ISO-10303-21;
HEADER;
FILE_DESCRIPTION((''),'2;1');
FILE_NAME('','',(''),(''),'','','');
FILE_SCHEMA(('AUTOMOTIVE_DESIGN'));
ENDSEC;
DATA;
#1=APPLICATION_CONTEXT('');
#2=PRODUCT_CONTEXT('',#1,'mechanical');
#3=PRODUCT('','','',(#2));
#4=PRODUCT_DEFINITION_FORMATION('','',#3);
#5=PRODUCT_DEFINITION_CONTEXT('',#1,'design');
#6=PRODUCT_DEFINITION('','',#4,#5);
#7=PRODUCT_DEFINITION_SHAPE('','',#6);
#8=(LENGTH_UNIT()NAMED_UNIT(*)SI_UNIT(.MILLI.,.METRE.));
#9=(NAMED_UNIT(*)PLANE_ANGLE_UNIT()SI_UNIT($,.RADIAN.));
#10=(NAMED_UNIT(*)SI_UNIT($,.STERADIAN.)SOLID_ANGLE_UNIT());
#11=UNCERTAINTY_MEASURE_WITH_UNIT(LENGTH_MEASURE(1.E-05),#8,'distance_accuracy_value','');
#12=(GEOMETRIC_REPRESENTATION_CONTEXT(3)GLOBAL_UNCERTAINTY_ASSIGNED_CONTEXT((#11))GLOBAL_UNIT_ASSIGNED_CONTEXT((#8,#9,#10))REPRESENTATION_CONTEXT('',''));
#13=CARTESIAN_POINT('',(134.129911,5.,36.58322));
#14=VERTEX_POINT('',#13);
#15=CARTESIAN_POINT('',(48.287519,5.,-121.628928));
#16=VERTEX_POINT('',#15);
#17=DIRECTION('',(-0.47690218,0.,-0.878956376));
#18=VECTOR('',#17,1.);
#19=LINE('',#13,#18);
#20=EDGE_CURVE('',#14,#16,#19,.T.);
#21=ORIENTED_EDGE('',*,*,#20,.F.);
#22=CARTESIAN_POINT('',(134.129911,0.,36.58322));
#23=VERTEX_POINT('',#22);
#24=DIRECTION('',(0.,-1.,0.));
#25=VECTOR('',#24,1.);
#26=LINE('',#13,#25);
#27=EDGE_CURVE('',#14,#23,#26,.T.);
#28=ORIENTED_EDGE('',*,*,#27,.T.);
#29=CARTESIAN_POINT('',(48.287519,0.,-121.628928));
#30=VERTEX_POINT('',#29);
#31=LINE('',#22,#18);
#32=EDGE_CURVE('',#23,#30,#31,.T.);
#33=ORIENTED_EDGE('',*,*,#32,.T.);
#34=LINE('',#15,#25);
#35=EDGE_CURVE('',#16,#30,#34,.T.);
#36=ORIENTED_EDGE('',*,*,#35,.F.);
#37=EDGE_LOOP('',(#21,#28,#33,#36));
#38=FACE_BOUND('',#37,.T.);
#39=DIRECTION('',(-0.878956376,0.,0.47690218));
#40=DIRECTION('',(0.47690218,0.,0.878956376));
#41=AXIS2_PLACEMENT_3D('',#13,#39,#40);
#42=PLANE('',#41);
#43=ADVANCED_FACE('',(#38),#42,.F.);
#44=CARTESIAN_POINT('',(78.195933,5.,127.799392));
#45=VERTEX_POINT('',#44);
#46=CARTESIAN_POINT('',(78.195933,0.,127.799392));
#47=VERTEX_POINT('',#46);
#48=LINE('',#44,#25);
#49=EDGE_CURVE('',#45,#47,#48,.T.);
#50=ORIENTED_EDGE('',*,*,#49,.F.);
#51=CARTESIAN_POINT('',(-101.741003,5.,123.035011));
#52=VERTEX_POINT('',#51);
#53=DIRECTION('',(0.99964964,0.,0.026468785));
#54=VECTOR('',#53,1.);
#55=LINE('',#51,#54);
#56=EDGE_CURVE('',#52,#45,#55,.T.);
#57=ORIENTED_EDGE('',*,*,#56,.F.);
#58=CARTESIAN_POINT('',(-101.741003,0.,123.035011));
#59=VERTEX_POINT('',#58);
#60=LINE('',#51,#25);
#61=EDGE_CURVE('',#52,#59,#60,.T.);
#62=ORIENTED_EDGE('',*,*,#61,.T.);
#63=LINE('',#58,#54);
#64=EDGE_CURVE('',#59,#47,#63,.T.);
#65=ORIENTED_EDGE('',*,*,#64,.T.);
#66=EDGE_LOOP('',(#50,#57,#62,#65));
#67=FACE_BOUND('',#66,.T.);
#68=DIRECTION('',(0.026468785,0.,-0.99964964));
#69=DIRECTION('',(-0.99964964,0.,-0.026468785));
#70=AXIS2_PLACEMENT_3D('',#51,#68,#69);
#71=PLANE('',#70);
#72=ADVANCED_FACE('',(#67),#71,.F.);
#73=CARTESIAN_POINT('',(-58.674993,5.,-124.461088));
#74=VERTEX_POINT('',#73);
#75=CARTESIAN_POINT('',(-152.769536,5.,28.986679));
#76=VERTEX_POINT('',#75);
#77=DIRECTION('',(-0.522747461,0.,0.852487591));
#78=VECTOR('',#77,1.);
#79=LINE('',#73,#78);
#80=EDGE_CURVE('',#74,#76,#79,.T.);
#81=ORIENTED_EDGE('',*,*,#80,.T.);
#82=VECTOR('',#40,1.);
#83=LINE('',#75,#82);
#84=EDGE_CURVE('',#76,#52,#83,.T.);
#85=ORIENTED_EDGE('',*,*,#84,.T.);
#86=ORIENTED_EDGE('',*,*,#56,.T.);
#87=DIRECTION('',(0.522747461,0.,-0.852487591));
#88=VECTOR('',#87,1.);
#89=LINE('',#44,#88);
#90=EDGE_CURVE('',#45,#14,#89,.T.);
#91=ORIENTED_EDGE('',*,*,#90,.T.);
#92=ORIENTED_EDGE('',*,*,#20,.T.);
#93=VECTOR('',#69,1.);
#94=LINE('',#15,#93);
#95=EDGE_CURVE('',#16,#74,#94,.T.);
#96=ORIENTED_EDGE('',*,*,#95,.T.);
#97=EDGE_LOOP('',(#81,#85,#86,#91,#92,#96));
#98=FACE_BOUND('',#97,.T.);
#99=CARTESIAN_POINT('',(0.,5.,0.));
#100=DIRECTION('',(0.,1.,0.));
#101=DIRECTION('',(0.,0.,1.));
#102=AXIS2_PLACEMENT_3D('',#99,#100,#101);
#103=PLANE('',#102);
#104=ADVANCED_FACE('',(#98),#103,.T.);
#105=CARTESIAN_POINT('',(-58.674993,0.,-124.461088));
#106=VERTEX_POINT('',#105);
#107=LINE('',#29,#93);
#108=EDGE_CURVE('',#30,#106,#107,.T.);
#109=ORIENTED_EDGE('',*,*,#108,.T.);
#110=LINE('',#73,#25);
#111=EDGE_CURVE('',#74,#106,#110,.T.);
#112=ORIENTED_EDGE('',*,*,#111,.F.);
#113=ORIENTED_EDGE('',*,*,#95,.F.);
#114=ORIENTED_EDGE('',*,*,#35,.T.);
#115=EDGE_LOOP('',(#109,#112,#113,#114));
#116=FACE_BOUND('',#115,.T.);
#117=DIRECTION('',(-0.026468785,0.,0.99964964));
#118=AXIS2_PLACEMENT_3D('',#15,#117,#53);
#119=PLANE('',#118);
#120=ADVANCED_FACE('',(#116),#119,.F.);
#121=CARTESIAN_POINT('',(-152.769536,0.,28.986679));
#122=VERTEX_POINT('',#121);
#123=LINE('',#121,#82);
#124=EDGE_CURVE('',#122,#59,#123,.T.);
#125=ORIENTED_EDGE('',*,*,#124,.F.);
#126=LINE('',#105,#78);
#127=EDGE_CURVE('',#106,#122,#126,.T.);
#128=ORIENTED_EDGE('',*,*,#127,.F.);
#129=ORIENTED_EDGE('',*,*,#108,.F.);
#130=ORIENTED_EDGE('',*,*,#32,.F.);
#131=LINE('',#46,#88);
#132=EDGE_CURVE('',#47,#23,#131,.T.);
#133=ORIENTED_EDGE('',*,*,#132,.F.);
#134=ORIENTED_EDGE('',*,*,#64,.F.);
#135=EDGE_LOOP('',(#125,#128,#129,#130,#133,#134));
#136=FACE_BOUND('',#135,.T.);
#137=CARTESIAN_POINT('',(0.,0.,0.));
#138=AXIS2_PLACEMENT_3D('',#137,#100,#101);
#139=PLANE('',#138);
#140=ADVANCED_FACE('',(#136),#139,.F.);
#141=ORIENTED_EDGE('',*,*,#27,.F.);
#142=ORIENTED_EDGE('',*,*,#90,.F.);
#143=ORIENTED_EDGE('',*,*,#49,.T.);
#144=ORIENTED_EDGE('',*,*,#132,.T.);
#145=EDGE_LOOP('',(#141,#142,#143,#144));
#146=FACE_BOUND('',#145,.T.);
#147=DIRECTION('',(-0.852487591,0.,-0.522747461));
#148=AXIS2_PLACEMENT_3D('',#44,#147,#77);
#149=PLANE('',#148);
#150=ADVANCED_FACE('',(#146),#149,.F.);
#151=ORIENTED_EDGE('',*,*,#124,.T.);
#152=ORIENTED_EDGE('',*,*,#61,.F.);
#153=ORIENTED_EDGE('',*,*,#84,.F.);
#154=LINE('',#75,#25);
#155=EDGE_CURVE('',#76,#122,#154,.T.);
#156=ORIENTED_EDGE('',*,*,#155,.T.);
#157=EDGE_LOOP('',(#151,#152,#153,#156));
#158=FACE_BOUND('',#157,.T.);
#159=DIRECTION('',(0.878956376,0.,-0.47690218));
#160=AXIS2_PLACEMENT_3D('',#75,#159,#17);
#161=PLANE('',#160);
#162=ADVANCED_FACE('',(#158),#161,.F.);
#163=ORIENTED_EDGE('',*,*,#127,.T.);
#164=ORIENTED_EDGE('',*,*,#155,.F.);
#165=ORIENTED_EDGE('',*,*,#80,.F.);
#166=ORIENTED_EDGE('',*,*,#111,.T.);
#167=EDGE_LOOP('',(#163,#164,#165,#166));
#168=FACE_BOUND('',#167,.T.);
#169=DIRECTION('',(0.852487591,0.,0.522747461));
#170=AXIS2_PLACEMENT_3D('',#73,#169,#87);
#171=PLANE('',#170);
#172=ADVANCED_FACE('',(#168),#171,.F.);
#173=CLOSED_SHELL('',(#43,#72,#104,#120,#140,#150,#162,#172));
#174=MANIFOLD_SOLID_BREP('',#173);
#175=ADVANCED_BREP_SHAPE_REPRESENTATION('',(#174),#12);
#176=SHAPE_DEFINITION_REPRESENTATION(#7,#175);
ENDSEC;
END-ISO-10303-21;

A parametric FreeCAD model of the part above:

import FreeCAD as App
import Part
import Sketcher
from FreeCAD import Vector

doc = App.newDocument("Part")
body = doc.addObject("PartDesign::Body", "Body")

sketch1 = body.newObject("Sketcher::SketchObject", "Sketch")
sketch1.AttachmentSupport = (doc.getObject("XZ_Plane"), [""])
sketch1.MapMode = "FlatFace"
sketch1.addGeometry(Part.LineSegment(Vector(48, -122, 0), Vector(-59, -124, 0)), False)
sketch1.addGeometry(Part.LineSegment(Vector(-59, -124, 0), Vector(-153, 29, 0)), False)
sketch1.addGeometry(Part.LineSegment(Vector(-153, 29, 0), Vector(-102, 123, 0)), False)
sketch1.addGeometry(Part.LineSegment(Vector(-102, 123, 0), Vector(78, 128, 0)), False)
sketch1.addGeometry(Part.LineSegment(Vector(78, 128, 0), Vector(134, 37, 0)), False)
sketch1.addGeometry(Part.LineSegment(Vector(134, 37, 0), Vector(48, -122, 0)), False)
sketch1.addConstraint(Sketcher.Constraint("Coincident", 0, 2, 1, 1))
sketch1.addConstraint(Sketcher.Constraint("Coincident", 1, 2, 2, 1))
sketch1.addConstraint(Sketcher.Constraint("Coincident", 2, 2, 3, 1))
sketch1.addConstraint(Sketcher.Constraint("Coincident", 3, 2, 4, 1))
sketch1.addConstraint(Sketcher.Constraint("Coincident", 4, 2, 5, 1))
sketch1.addConstraint(Sketcher.Constraint("Coincident", 5, 2, 0, 1))
sketch1.addConstraint(Sketcher.Constraint("Parallel", 0, 3))
sketch1.addConstraint(Sketcher.Constraint("Parallel", 1, 4))
sketch1.addConstraint(Sketcher.Constraint("Parallel", 2, 5))
sketch1.addConstraint(Sketcher.Constraint("Equal", 0, 2))
sketch1.addConstraint(Sketcher.Constraint("Equal", 1, 3))
sketch1.addConstraint(Sketcher.Constraint("Equal", 2, 4))
sketch1.addConstraint(Sketcher.Constraint("Equal", 3, 5))
sketch1.addConstraint(Sketcher.Constraint("Distance", 0, 107.0))
sketch1.addConstraint(Sketcher.Constraint("Distance", 1, 180.0))
sketch1.addConstraint(Sketcher.Constraint("DistanceY", 0, 2, 2, 2, 247.496099))
sketch1.addConstraint(Sketcher.Constraint("DistanceY", -1, 1, 1, 2, 28.986679))
sketch1.addConstraint(Sketcher.Constraint("DistanceX", -1, 1, 4, 2, 134.129911))
pad1 = body.newObject("PartDesign::Pad", "Pad")
pad1.Profile = sketch1
pad1.Length = 5
pad1.Reversed = True

doc.recompute()
